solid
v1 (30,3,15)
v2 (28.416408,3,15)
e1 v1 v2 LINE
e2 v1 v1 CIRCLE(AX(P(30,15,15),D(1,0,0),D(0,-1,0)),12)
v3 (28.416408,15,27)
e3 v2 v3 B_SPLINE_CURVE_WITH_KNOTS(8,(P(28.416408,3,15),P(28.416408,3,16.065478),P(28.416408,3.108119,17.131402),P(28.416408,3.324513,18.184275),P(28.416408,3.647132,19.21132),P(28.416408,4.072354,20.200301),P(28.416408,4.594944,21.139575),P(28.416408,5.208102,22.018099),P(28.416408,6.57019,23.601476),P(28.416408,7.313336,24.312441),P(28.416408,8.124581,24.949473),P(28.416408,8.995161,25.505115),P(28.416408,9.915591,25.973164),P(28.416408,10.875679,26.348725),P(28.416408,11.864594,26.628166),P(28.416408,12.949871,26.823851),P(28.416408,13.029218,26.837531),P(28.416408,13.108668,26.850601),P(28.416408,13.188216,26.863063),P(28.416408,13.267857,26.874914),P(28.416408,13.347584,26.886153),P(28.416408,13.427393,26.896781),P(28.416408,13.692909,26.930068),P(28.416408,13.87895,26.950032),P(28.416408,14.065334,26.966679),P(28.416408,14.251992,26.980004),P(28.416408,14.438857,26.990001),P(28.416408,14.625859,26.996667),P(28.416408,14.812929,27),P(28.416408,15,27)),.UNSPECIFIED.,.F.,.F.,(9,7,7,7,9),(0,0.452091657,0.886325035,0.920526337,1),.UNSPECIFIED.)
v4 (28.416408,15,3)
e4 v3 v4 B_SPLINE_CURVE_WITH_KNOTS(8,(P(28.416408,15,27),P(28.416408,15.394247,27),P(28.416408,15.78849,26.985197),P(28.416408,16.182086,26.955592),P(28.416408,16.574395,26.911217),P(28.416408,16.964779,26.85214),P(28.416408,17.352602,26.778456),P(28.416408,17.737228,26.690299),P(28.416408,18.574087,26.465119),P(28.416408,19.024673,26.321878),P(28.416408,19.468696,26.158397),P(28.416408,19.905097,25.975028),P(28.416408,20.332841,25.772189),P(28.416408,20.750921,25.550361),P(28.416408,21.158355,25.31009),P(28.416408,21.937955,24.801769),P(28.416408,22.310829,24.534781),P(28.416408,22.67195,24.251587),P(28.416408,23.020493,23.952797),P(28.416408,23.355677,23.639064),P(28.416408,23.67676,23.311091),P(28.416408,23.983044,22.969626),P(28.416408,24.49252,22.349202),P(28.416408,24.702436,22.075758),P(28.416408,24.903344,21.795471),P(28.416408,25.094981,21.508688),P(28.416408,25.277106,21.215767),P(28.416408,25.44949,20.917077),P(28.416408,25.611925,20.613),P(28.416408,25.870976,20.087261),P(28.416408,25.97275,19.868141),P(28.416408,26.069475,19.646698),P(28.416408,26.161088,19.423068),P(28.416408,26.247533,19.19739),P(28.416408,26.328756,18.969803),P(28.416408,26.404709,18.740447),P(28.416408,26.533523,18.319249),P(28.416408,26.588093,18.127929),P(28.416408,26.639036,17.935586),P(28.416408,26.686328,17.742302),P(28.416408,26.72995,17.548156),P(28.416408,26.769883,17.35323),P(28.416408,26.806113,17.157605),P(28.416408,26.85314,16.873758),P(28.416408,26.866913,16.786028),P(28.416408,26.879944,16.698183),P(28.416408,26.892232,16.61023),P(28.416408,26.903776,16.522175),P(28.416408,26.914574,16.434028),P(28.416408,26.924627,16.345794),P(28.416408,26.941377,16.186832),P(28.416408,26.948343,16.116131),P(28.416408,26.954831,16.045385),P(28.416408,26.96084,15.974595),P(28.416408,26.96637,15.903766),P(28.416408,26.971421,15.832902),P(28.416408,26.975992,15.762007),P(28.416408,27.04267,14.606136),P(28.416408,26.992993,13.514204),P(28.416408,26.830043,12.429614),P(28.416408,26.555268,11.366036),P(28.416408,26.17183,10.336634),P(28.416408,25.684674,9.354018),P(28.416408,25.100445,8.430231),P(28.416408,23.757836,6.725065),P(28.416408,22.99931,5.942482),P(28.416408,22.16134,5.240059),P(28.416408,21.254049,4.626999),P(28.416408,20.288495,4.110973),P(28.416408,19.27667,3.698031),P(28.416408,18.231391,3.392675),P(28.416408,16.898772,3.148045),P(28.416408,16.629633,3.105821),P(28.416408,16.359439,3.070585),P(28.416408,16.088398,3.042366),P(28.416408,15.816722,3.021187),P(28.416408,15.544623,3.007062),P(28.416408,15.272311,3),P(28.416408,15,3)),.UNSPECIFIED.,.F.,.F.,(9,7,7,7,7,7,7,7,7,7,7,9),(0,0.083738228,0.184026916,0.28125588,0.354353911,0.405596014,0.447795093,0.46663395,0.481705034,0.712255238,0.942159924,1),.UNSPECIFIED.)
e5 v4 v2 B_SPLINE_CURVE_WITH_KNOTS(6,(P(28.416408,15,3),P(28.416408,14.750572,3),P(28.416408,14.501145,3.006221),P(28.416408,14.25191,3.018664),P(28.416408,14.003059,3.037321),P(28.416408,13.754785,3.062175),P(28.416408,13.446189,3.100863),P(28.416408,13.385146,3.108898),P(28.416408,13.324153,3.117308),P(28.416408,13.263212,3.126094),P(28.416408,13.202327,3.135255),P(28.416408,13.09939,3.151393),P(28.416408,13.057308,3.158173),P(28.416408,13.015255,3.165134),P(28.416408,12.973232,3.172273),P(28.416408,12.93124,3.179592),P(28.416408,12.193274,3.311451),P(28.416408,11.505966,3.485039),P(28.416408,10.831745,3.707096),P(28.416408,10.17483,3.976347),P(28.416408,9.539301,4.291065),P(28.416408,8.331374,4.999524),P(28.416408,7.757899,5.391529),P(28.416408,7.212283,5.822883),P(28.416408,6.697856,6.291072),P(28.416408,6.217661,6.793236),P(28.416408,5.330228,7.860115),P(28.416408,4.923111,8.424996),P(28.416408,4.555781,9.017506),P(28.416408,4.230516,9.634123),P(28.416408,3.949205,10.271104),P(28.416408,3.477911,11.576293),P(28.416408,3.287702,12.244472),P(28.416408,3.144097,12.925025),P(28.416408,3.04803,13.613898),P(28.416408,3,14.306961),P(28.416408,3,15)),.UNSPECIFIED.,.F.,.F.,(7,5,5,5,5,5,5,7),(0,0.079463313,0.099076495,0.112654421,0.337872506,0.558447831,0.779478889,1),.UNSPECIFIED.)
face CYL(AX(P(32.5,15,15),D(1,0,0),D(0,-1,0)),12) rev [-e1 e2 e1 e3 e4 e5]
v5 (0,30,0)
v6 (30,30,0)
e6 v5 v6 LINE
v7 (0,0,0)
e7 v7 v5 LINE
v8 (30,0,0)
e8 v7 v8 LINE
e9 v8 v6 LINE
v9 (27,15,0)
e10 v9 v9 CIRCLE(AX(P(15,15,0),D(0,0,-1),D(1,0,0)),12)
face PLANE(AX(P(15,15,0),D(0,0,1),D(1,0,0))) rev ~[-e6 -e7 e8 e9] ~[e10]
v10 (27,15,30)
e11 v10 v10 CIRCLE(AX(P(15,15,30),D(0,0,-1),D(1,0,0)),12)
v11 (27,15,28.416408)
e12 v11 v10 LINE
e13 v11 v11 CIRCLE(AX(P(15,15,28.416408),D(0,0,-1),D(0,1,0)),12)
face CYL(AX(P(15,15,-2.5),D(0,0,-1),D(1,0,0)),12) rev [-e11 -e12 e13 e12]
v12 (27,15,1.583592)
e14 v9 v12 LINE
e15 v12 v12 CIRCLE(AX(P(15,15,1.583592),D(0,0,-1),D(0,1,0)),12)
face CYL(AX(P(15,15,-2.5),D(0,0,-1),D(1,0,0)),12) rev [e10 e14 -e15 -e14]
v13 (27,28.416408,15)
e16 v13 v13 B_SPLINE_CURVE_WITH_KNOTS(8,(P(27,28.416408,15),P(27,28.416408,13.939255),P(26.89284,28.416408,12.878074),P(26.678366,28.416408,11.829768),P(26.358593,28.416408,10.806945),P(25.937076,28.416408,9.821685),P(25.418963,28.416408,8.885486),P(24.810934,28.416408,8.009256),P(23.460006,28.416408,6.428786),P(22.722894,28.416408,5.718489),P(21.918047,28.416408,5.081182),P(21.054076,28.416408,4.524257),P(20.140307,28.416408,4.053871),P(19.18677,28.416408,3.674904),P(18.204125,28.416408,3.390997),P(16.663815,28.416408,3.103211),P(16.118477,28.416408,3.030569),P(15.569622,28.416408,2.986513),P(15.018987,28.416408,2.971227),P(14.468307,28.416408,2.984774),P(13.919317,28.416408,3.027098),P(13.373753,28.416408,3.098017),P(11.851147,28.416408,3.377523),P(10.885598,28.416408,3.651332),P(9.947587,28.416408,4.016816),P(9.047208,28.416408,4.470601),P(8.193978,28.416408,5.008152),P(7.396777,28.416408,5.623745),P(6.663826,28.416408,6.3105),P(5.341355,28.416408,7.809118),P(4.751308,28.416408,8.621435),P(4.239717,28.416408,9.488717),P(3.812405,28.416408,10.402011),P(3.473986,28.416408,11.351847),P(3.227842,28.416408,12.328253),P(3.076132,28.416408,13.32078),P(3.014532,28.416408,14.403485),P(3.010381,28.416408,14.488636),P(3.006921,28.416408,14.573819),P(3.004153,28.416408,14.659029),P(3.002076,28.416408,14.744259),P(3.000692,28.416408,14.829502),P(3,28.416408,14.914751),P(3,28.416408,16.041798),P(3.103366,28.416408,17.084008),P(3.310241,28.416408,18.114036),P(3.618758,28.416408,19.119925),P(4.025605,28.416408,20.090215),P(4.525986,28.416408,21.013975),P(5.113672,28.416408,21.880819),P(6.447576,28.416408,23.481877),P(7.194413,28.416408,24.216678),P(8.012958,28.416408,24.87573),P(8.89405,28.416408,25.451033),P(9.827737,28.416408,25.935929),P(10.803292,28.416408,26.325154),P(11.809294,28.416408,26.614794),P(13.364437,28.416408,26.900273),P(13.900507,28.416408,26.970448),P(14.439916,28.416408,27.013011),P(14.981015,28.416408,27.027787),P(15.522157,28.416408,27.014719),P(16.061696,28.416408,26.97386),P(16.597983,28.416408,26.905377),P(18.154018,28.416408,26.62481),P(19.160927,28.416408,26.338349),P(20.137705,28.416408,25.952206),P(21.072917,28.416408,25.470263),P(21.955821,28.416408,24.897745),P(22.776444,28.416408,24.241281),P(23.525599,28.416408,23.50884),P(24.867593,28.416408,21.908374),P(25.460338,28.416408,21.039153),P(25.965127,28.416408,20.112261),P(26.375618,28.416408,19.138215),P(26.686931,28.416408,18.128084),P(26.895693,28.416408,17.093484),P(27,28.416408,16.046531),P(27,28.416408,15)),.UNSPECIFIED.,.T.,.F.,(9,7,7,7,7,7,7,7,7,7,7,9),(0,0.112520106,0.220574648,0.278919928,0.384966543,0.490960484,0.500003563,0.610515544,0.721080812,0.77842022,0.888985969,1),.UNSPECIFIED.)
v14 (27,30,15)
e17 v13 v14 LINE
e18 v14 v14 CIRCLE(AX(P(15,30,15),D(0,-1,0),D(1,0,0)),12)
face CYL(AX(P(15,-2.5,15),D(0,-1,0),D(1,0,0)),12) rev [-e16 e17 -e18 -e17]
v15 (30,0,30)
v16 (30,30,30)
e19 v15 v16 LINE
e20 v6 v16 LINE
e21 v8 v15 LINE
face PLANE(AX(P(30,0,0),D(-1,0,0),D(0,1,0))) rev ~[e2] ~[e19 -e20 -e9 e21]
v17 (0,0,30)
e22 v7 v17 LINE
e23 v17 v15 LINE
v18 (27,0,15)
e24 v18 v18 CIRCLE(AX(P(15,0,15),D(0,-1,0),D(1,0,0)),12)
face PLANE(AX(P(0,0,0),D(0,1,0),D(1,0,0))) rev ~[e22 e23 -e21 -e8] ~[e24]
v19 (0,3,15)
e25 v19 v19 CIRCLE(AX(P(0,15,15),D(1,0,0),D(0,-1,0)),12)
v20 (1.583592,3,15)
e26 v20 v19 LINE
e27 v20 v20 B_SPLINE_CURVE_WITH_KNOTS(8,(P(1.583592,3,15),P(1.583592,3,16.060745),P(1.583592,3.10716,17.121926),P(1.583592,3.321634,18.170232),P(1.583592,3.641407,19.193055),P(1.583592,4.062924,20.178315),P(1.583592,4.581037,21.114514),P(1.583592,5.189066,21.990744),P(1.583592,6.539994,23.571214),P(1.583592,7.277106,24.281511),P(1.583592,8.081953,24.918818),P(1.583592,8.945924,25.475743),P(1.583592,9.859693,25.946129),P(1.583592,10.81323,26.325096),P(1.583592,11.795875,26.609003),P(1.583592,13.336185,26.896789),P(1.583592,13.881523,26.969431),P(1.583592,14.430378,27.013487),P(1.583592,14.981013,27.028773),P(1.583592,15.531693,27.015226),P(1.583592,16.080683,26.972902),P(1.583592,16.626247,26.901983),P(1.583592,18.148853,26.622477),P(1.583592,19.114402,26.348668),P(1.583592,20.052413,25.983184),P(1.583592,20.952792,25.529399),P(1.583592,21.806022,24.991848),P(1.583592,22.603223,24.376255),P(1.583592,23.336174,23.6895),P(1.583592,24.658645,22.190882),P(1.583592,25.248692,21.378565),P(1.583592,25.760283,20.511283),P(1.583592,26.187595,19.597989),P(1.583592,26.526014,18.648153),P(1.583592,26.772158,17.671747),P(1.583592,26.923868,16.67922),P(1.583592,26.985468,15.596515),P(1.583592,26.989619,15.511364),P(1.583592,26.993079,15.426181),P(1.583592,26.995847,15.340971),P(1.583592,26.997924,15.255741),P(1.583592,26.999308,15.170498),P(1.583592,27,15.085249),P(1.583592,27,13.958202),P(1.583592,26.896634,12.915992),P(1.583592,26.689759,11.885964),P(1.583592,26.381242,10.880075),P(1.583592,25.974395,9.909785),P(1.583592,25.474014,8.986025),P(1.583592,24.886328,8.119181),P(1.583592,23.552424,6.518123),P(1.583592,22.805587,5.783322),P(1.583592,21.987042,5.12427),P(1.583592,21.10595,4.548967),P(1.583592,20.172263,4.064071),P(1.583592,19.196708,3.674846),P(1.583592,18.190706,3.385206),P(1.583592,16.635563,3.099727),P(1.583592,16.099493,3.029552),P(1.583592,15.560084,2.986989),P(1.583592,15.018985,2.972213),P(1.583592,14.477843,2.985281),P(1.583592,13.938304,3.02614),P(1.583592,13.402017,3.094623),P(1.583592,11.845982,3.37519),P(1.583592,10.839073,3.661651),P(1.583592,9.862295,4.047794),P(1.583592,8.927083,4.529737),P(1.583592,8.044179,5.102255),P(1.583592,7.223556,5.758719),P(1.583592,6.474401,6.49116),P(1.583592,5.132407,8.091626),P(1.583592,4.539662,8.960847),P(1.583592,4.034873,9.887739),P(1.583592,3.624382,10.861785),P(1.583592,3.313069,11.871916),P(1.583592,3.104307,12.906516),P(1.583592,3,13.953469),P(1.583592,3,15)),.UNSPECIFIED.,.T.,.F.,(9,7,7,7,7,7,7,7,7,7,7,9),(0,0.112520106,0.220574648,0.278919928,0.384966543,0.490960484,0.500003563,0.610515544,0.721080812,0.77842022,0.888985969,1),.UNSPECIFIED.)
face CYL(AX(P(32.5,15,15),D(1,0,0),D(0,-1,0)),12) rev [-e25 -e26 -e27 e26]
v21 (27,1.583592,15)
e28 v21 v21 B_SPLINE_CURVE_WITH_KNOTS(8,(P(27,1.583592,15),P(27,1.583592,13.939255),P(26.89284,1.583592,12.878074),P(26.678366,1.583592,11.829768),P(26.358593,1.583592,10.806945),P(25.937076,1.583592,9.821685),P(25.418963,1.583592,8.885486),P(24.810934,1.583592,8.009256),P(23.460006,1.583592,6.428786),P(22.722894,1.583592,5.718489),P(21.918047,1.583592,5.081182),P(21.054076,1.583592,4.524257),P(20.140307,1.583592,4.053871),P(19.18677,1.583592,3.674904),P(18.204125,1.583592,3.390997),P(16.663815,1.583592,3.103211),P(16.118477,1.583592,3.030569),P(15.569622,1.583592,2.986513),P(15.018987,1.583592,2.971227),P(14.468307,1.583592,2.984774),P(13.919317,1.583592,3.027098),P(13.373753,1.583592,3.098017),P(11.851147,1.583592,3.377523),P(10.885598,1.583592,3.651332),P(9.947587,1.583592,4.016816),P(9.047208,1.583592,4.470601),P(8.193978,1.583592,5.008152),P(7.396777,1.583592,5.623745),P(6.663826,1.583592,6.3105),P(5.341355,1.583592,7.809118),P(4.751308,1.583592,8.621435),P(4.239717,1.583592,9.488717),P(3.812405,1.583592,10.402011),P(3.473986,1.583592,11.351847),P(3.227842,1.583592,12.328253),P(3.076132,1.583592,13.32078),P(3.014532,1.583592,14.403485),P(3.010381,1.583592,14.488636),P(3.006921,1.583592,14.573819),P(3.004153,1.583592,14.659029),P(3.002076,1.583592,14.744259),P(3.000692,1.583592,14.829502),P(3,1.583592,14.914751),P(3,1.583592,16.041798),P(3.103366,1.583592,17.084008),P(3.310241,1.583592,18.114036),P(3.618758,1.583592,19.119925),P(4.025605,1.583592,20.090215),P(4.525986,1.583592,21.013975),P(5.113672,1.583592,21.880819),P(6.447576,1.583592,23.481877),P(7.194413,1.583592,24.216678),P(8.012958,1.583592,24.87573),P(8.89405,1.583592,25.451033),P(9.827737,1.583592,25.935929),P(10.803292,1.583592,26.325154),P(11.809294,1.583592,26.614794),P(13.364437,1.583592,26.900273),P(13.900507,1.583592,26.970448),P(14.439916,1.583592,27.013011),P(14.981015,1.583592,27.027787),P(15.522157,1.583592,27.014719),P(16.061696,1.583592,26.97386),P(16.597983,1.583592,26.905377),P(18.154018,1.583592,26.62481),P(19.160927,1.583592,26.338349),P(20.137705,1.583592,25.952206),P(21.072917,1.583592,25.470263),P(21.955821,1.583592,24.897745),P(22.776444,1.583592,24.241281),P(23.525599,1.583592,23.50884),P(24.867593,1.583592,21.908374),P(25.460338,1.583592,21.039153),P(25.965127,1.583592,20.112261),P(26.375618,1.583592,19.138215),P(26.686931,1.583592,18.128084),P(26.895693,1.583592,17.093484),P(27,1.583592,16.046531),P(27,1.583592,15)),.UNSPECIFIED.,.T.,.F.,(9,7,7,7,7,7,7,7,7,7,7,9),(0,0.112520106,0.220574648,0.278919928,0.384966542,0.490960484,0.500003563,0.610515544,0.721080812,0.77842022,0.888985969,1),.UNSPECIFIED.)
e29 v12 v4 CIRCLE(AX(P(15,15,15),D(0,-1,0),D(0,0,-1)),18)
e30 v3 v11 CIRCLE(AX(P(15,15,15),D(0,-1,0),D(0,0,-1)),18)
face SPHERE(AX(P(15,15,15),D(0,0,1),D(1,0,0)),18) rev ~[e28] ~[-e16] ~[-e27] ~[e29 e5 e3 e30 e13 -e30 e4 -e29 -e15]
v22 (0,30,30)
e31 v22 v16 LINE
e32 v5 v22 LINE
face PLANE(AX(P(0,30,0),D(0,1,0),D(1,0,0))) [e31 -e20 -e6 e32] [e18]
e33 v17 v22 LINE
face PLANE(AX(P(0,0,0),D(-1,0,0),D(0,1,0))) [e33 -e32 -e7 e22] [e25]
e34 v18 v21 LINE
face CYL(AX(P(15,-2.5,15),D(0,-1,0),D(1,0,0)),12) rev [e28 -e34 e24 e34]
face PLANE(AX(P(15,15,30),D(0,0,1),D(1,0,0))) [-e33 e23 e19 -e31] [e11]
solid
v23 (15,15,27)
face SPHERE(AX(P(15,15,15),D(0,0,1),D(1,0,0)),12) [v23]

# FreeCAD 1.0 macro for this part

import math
import FreeCAD as App
import Part
import Sketcher

V = App.Vector


def add_polygon(sketch, points):
    """Adds a closed chain of lines whose ends are joined by coincident constraints."""
    first, n = sketch.GeometryCount, len(points)
    for a, b in zip(points, points[1:] + points[:1]):
        sketch.addGeometry(Part.LineSegment(App.Vector(*a, 0), App.Vector(*b, 0)), False)
    for i in range(n):
        sketch.addConstraint(Sketcher.Constraint("Coincident", first + i, 2, first + (i + 1) % n, 1))

doc = App.newDocument("Part")
params = doc.addObject("Spreadsheet::Sheet", "Params")
for row, (alias, value) in enumerate([
    ("sketch1_radius", "12 mm"),
    ("revolution_angle", "360 deg"),
    ("sketch2_radius", "18 mm"),
    ("revolution2_angle", "360 deg"),
    ("sketch3_diameter", "24 mm"),
    ("pad1_length", "35 mm"),
    ("sketch4_diameter", "24 mm"),
    ("pad2_length", "35 mm"),
    ("sketch5_diameter", "24 mm"),
    ("pad3_length", "35 mm"),
    ("sketch6_width", "30 mm"),
    ("pad4_length", "30 mm"),
], start=1):
    params.set(f"A{row}", alias)
    params.set(f"B{row}", "=" + value)
    params.setAlias(f"B{row}", alias)

body = doc.addObject("PartDesign::Body", "Body")

# Sketch on XZ plane
sketch1 = body.newObject("Sketcher::SketchObject", "Sketch")
sketch1.AttachmentSupport = (doc.getObject("XZ_Plane"), [""])
sketch1.MapMode = "FlatFace"
sketch1.AttachmentOffset = App.Placement(V(0, 0, -15), App.Rotation())
sketch1.addGeometry(Part.ArcOfCircle(Part.Circle(V(15, 15, 0), V(0, 0, 1), 12), math.radians(-90), math.radians(90)), False)
sketch1.addGeometry(Part.LineSegment(V(15, 27, 0), V(15, 3, 0)), False)
sketch1.addGeometry(Part.LineSegment(V(15, 3, 0), V(15, 27, 0)), True)  # axis
sketch1.addConstraint(Sketcher.Constraint("Coincident", 0, 1, 1, 2))
sketch1.addConstraint(Sketcher.Constraint("Coincident", 1, 1, 0, 2))
sketch1.addConstraint(Sketcher.Constraint("Vertical", 1))
sketch1.addConstraint(Sketcher.Constraint("Vertical", 2))
sketch1.addConstraint(Sketcher.Constraint("Coincident", 2, 1, 0, 1))
sketch1.addConstraint(Sketcher.Constraint("Equal", 1, 2))
sketch1.addConstraint(Sketcher.Constraint("Radius", 0, 12.0))
sketch1.addConstraint(Sketcher.Constraint("DistanceX", -1, 1, 0, 3, 15.0))
sketch1.addConstraint(Sketcher.Constraint("DistanceY", -1, 1, 0, 3, 15.0))
sketch1.addConstraint(Sketcher.Constraint("DistanceX", -1, 1, 0, 1, 15.0))
sketch1.setExpression("Constraints[6]", "Params.sketch1_radius")
revolution = body.newObject("PartDesign::Revolution", "Revolution")
revolution.Profile = sketch1
revolution.ReferenceAxis = (sketch1, ["Axis0"])
revolution.setExpression("Angle", "Params.revolution_angle")
body2 = doc.addObject("PartDesign::Body", "Body001")

# Sketch on XZ plane
sketch2 = body2.newObject("Sketcher::SketchObject", "Sketch001")
sketch2.AttachmentSupport = (doc.getObject("XZ_Plane001"), [""])
sketch2.MapMode = "FlatFace"
sketch2.AttachmentOffset = App.Placement(V(0, 0, -15), App.Rotation())
sketch2.addGeometry(Part.ArcOfCircle(Part.Circle(V(15, 15, 0), V(0, 0, 1), 18), math.radians(-90), math.radians(90)), False)
sketch2.addGeometry(Part.LineSegment(V(15, 33, 0), V(15, -3, 0)), False)
sketch2.addGeometry(Part.LineSegment(V(15, -3, 0), V(15, 33, 0)), True)  # axis
sketch2.addConstraint(Sketcher.Constraint("Coincident", 0, 1, 1, 2))
sketch2.addConstraint(Sketcher.Constraint("Coincident", 1, 1, 0, 2))
sketch2.addConstraint(Sketcher.Constraint("Vertical", 1))
sketch2.addConstraint(Sketcher.Constraint("Vertical", 2))
sketch2.addConstraint(Sketcher.Constraint("Coincident", 2, 1, 0, 1))
sketch2.addConstraint(Sketcher.Constraint("Equal", 1, 2))
sketch2.addConstraint(Sketcher.Constraint("Radius", 0, 18.0))
sketch2.addConstraint(Sketcher.Constraint("DistanceX", -1, 1, 0, 3, 15.0))
sketch2.addConstraint(Sketcher.Constraint("DistanceY", -1, 1, 0, 3, 15.0))
sketch2.addConstraint(Sketcher.Constraint("DistanceX", -1, 1, 0, 1, 15.0))
sketch2.setExpression("Constraints[6]", "Params.sketch2_radius")
revolution2 = body2.newObject("PartDesign::Revolution", "Revolution001")
revolution2.Profile = sketch2
revolution2.ReferenceAxis = (sketch2, ["Axis0"])
revolution2.setExpression("Angle", "Params.revolution2_angle")
body3 = doc.addObject("PartDesign::Body", "Body002")

# Sketch on XY plane
sketch3 = body3.newObject("Sketcher::SketchObject", "Sketch002")
sketch3.AttachmentSupport = (doc.getObject("XY_Plane002"), [""])
sketch3.MapMode = "FlatFace"
sketch3.AttachmentOffset = App.Placement(V(0, 0, -2.5), App.Rotation())
sketch3.addGeometry(Part.Circle(V(15, 15, 0), V(0, 0, 1), 12), False)
sketch3.addConstraint(Sketcher.Constraint("Diameter", 0, 24.0))
sketch3.addConstraint(Sketcher.Constraint("DistanceX", -1, 1, 0, 3, 15.0))
sketch3.addConstraint(Sketcher.Constraint("DistanceY", -1, 1, 0, 3, 15.0))
sketch3.setExpression("Constraints[0]", "Params.sketch3_diameter")
pad1 = body3.newObject("PartDesign::Pad", "Pad")
pad1.Profile = sketch3
pad1.setExpression("Length", "Params.pad1_length")
body4 = doc.addObject("PartDesign::Body", "Body003")

# Sketch on YZ plane
sketch4 = body4.newObject("Sketcher::SketchObject", "Sketch003")
sketch4.AttachmentSupport = (doc.getObject("YZ_Plane003"), [""])
sketch4.MapMode = "FlatFace"
sketch4.AttachmentOffset = App.Placement(V(0, 0, 32.5), App.Rotation())
sketch4.addGeometry(Part.Circle(V(15, 15, 0), V(0, 0, 1), 12), False)
sketch4.addConstraint(Sketcher.Constraint("Diameter", 0, 24.0))
sketch4.addConstraint(Sketcher.Constraint("DistanceX", -1, 1, 0, 3, 15.0))
sketch4.addConstraint(Sketcher.Constraint("DistanceY", -1, 1, 0, 3, 15.0))
sketch4.setExpression("Constraints[0]", "Params.sketch4_diameter")
pad2 = body4.newObject("PartDesign::Pad", "Pad001")
pad2.Profile = sketch4
pad2.setExpression("Length", "Params.pad2_length")
pad2.Reversed = True
body5 = doc.addObject("PartDesign::Body", "Body004")

# Sketch on XZ plane
sketch5 = body5.newObject("Sketcher::SketchObject", "Sketch004")
sketch5.AttachmentSupport = (doc.getObject("XZ_Plane004"), [""])
sketch5.MapMode = "FlatFace"
sketch5.AttachmentOffset = App.Placement(V(0, 0, 2.5), App.Rotation())
sketch5.addGeometry(Part.Circle(V(15, 15, 0), V(0, 0, 1), 12), False)
sketch5.addConstraint(Sketcher.Constraint("Diameter", 0, 24.0))
sketch5.addConstraint(Sketcher.Constraint("DistanceX", -1, 1, 0, 3, 15.0))
sketch5.addConstraint(Sketcher.Constraint("DistanceY", -1, 1, 0, 3, 15.0))
sketch5.setExpression("Constraints[0]", "Params.sketch5_diameter")
pad3 = body5.newObject("PartDesign::Pad", "Pad002")
pad3.Profile = sketch5
pad3.setExpression("Length", "Params.pad3_length")
pad3.Reversed = True
doc.recompute()

boolean = body5.newObject("PartDesign::Boolean", "Boolean")
boolean.Type = "Fuse"
boolean.addObjects([body3])
doc.recompute()

boolean2 = body5.newObject("PartDesign::Boolean", "Boolean001")
boolean2.Type = "Fuse"
boolean2.addObjects([body4])
body6 = doc.addObject("PartDesign::Body", "Body005")

# Sketch on XY plane
sketch6 = body6.newObject("Sketcher::SketchObject", "Sketch005")
sketch6.AttachmentSupport = (doc.getObject("XY_Plane005"), [""])
sketch6.MapMode = "FlatFace"
add_polygon(sketch6, [(0, 30), (0, 0), (30, 0), (30, 30)])  # lines 0-3
sketch6.addConstraint(Sketcher.Constraint("Vertical", 0))
sketch6.addConstraint(Sketcher.Constraint("Horizontal", 1))
sketch6.addConstraint(Sketcher.Constraint("Vertical", 2))
sketch6.addConstraint(Sketcher.Constraint("Horizontal", 3))
sketch6.addConstraint(Sketcher.Constraint("Coincident", 0, 2, -1, 1))
sketch6.addConstraint(Sketcher.Constraint("Equal", 3, 0))
sketch6.addConstraint(Sketcher.Constraint("DistanceX", 1, 1, 1, 2, 30.0))
sketch6.setExpression("Constraints[10]", "Params.sketch6_width")
pad4 = body6.newObject("PartDesign::Pad", "Pad003")
pad4.Profile = sketch6
pad4.setExpression("Length", "Params.pad4_length")
doc.recompute()

boolean3 = body6.newObject("PartDesign::Boolean", "Boolean002")
boolean3.Type = "Cut"
boolean3.addObjects([body5])
doc.recompute()

boolean4 = body6.newObject("PartDesign::Boolean", "Boolean003")
boolean4.Type = "Cut"
boolean4.addObjects([body2])

doc.recompute()
